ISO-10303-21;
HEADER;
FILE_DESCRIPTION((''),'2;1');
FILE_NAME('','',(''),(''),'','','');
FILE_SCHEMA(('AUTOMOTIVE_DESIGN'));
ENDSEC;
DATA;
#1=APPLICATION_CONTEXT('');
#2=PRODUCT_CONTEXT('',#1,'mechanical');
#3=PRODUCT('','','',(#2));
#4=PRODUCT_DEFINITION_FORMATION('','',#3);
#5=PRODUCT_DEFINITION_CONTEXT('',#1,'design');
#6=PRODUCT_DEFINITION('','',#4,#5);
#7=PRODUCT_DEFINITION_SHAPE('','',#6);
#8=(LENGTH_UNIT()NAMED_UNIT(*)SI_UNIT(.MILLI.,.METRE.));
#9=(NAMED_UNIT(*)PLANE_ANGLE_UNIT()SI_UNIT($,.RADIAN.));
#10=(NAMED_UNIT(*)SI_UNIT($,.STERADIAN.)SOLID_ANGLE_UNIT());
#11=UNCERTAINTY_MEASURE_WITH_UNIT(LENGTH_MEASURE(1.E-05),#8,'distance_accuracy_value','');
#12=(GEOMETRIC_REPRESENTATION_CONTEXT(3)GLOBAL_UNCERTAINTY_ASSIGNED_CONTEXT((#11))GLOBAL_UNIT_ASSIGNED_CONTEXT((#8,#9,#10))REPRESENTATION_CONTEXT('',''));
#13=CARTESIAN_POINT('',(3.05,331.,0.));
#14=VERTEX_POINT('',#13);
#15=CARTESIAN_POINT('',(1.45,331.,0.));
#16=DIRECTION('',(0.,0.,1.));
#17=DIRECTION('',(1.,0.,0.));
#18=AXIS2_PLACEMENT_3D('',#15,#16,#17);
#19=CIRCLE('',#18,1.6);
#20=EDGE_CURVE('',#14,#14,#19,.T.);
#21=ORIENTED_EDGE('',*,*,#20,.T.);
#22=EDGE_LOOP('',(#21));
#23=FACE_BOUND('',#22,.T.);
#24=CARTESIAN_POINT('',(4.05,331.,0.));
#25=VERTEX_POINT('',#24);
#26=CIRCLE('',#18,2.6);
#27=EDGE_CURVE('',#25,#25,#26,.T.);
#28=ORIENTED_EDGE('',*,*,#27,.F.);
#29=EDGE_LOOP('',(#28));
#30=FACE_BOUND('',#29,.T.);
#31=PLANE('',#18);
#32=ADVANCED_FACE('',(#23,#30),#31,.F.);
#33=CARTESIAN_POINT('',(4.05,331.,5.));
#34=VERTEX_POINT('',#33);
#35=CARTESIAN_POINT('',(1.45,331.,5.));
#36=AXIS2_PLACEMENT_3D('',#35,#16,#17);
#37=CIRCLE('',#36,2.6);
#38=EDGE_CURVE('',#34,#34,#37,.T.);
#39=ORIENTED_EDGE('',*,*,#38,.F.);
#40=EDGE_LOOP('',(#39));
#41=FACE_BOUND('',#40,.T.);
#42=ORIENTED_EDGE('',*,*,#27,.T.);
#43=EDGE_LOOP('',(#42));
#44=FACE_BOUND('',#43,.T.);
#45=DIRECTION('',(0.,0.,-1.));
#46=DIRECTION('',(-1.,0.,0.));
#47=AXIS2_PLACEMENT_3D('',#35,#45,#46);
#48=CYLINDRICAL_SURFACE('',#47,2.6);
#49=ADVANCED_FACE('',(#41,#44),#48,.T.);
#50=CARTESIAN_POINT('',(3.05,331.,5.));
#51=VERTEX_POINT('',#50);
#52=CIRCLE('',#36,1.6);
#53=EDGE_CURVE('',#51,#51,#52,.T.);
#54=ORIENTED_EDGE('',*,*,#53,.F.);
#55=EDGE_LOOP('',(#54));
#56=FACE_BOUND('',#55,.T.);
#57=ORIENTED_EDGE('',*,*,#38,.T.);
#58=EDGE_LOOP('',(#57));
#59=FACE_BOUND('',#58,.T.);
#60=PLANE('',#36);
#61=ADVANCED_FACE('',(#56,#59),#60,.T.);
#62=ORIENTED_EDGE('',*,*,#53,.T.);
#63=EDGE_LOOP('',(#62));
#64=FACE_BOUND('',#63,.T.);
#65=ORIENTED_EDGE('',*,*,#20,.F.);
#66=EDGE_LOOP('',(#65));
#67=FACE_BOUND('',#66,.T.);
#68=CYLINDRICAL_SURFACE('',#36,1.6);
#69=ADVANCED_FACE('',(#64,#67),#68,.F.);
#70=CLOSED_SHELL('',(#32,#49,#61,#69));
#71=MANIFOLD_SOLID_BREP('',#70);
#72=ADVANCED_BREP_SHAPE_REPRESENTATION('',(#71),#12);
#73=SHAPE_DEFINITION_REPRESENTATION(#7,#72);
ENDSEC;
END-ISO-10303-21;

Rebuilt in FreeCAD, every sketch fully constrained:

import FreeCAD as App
import Part
import Sketcher

V = App.Vector
Q = App.Units.Quantity

doc = App.newDocument("Part")
body = doc.addObject("PartDesign::Body", "Body")

# Sketch on XY plane
sketch1 = body.newObject("Sketcher::SketchObject", "Sketch")
sketch1.AttachmentSupport = (doc.getObject("XY_Plane"), [""])
sketch1.MapMode = "FlatFace"
sketch1.addGeometry(Part.Circle(V(1.4, 331, 0), V(0, 0, 1), 2.6), False)
sketch1.addConstraint([
    Sketcher.Constraint("Diameter", 0, Q("5.2 mm")),
    Sketcher.Constraint("DistanceY", -1, 1, 0, 3, Q("331 mm")),
    Sketcher.Constraint("DistanceX", -1, 1, 0, 3, Q("1.45 mm")),
])
pad1 = body.newObject("PartDesign::Pad", "Pad")
pad1.Profile = sketch1
pad1.Length = 5

# Sketch on XY plane
sketch2 = body.newObject("Sketcher::SketchObject", "Sketch001")
sketch2.AttachmentSupport = (doc.getObject("XY_Plane"), [""])
sketch2.MapMode = "FlatFace"
sketch2.AttachmentOffset = App.Placement(V(0, 0, 5), App.Rotation())
sketch2.addGeometry(Part.Circle(V(1.4, 331, 0), V(0, 0, 1), 1.6), False)
sketch2.addConstraint([
    Sketcher.Constraint("Diameter", 0, Q("3.2 mm")),
    Sketcher.Constraint("DistanceY", -1, 1, 0, 3, Q("331 mm")),
    Sketcher.Constraint("DistanceX", -1, 1, 0, 3, Q("1.45 mm")),
])
doc.recompute()
hole = body.newObject("PartDesign::Hole", "Hole")
hole.Profile = sketch2
hole.ThreadType = "None"
hole.Diameter = 3.2
hole.DepthType = "Dimension"
hole.Depth = 7
hole.DrillPoint = "Angled"
hole.DrillPointAngle = 118

doc.recompute()
